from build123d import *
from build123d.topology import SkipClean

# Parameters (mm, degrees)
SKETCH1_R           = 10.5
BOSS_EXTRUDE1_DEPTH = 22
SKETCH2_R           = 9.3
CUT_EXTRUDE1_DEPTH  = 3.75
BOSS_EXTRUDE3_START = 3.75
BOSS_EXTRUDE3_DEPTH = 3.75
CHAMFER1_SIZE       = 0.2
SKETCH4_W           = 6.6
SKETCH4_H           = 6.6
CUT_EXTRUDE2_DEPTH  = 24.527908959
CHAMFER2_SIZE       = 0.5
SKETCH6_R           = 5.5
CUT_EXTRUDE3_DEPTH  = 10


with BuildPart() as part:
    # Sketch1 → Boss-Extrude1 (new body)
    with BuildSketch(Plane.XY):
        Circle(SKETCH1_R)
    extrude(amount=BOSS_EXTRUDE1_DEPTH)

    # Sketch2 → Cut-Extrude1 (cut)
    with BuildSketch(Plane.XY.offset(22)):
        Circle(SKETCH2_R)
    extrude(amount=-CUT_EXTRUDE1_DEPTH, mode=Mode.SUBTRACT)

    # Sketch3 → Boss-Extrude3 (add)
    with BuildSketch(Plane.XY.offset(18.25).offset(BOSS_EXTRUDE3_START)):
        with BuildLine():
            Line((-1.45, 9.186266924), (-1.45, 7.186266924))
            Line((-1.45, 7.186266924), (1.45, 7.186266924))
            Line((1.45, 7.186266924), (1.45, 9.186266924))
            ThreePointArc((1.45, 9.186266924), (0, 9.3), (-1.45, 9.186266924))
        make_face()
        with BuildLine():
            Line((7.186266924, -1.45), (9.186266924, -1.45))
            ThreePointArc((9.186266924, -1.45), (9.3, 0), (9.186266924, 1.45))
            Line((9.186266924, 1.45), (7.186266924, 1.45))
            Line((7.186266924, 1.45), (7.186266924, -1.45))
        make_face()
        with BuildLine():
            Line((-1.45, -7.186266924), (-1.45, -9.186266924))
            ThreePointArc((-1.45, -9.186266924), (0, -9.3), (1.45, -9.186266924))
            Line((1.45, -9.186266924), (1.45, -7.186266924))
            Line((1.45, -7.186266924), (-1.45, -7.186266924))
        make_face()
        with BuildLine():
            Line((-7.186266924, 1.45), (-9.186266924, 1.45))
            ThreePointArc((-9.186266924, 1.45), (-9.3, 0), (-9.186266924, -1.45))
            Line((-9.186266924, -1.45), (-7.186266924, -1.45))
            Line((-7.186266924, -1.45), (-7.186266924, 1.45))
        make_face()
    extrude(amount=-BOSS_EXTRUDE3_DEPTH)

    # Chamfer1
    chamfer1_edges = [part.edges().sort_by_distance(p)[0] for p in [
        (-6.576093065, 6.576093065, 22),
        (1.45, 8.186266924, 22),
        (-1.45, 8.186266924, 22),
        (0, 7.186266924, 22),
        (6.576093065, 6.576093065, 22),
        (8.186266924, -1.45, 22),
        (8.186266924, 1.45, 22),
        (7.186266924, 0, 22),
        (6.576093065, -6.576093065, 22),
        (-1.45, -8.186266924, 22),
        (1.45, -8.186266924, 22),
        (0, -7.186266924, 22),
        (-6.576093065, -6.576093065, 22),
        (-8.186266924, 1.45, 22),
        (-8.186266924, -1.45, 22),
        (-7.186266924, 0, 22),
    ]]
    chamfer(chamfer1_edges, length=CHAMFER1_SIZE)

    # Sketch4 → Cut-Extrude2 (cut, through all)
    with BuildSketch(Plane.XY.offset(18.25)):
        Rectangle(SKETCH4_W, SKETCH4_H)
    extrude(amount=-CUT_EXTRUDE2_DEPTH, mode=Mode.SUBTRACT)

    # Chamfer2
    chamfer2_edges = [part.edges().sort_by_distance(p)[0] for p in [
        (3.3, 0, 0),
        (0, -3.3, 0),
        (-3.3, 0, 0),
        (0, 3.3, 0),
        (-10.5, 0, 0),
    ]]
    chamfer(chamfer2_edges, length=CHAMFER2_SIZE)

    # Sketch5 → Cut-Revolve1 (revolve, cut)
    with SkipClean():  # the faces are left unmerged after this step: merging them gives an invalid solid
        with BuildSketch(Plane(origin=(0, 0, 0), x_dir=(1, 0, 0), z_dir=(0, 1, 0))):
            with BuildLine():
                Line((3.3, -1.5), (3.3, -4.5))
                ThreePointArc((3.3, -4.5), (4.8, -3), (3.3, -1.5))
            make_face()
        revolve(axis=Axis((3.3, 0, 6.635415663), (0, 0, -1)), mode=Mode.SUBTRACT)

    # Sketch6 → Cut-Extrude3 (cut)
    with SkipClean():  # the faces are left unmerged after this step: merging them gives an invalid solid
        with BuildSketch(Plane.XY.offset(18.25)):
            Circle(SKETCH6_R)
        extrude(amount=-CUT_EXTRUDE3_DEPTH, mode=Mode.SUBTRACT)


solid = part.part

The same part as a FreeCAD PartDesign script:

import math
import FreeCAD as App
import Part
import Sketcher
Q = App.Units.Quantity


def edges_at(feature, points):
    """Names of the edges that pass closest to the given points."""
    edges = feature.Shape.Edges
    near = lambda p: min(range(len(edges)), key=lambda i: edges[i].distToShape(Part.Vertex(*p))[0])
    return sorted({f"Edge{near(p) + 1}" for p in points})

doc = App.newDocument("Part")
body = doc.addObject("PartDesign::Body", "Body")

# Sketch on XY plane
sketch1 = body.newObject("Sketcher::SketchObject", "Sketch")
sketch1.AttachmentSupport = (doc.getObject("XY_Plane"), [""])
sketch1.MapMode = "FlatFace"
sketch1.addGeometry(Part.Circle(App.Vector(0, 0, 0), App.Vector(0, 0, 1), 10.5), False)
sketch1.addConstraint([
    Sketcher.Constraint("Coincident", 0, 3, -1, 1),
    Sketcher.Constraint("Diameter", 0, Q("21 mm")),
])
pad1 = body.newObject("PartDesign::Pad", "Pad")
pad1.Profile = sketch1
pad1.Length = 22

# Sketch on XY plane
sketch2 = body.newObject("Sketcher::SketchObject", "Sketch001")
sketch2.AttachmentSupport = (doc.getObject("XY_Plane"), [""])
sketch2.MapMode = "FlatFace"
sketch2.AttachmentOffset = App.Placement(App.Vector(0, 0, 22), App.Rotation())
sketch2.addGeometry(Part.Circle(App.Vector(0, 0, 0), App.Vector(0, 0, 1), 9.3), False)
sketch2.addConstraint([
    Sketcher.Constraint("Coincident", 0, 3, -1, 1),
    Sketcher.Constraint("Diameter", 0, Q("18.6 mm")),
])
pocket1 = body.newObject("PartDesign::Pocket", "Pocket")
pocket1.Profile = sketch2
pocket1.Length = 3.75

# Sketch on XY plane
sketch3 = body.newObject("Sketcher::SketchObject", "Sketch002")
sketch3.AttachmentSupport = (doc.getObject("XY_Plane"), [""])
sketch3.MapMode = "FlatFace"
sketch3.AttachmentOffset = App.Placement(App.Vector(0, 0, 22), App.Rotation())
sketch3.addGeometry([
    Part.LineSegment(App.Vector(-1.45, 9.186267, 0), App.Vector(-1.45, 7.186267, 0)),  # 0
    Part.LineSegment(App.Vector(-1.45, 7.186267, 0), App.Vector(1.45, 7.186267, 0)),  # 1
    Part.LineSegment(App.Vector(1.45, 7.186267, 0), App.Vector(1.45, 9.186267, 0)),  # 2
    Part.ArcOfCircle(Part.Circle(App.Vector(0, 0, 0), App.Vector(0, 0, 1), 9.3), math.radians(81.030192), math.radians(98.969808)),  # 3
    Part.LineSegment(App.Vector(7.186267, -1.45, 0), App.Vector(9.186267, -1.45, 0)),  # 4
    Part.ArcOfCircle(Part.Circle(App.Vector(0, 0, 0), App.Vector(0, 0, 1), 9.3), math.radians(-8.969808), math.radians(8.969808)),  # 5
    Part.LineSegment(App.Vector(9.186267, 1.45, 0), App.Vector(7.186267, 1.45, 0)),  # 6
    Part.LineSegment(App.Vector(7.186267, 1.45, 0), App.Vector(7.186267, -1.45, 0)),  # 7
    Part.LineSegment(App.Vector(-1.45, -7.186267, 0), App.Vector(-1.45, -9.186267, 0)),  # 8
    Part.ArcOfCircle(Part.Circle(App.Vector(0, 0, 0), App.Vector(0, 0, 1), 9.3), math.radians(-98.969808), math.radians(-81.030192)),  # 9
    Part.LineSegment(App.Vector(1.45, -9.186267, 0), App.Vector(1.45, -7.186267, 0)),  # 10
    Part.LineSegment(App.Vector(1.45, -7.186267, 0), App.Vector(-1.45, -7.186267, 0)),  # 11
    Part.LineSegment(App.Vector(-7.186267, 1.45, 0), App.Vector(-9.186267, 1.45, 0)),  # 12
    Part.ArcOfCircle(Part.Circle(App.Vector(0, 0, 0), App.Vector(0, 0, 1), 9.3), math.radians(171.030192), math.radians(188.969808)),  # 13
    Part.LineSegment(App.Vector(-9.186267, -1.45, 0), App.Vector(-7.186267, -1.45, 0)),  # 14
    Part.LineSegment(App.Vector(-7.186267, -1.45, 0), App.Vector(-7.186267, 1.45, 0)),  # 15
], False)
sketch3.addConstraint([
    Sketcher.Constraint("Coincident", 0, 2, 1, 1),
    Sketcher.Constraint("Coincident", 1, 2, 2, 1),
    Sketcher.Constraint("Coincident", 2, 2, 3, 1),
    Sketcher.Constraint("Coincident", 3, 2, 0, 1),
    Sketcher.Constraint("Coincident", 4, 2, 5, 1),
    Sketcher.Constraint("Coincident", 5, 2, 6, 1),
    Sketcher.Constraint("Coincident", 6, 2, 7, 1),
    Sketcher.Constraint("Coincident", 7, 2, 4, 1),
    Sketcher.Constraint("Coincident", 8, 2, 9, 1),
    Sketcher.Constraint("Coincident", 9, 2, 10, 1),
    Sketcher.Constraint("Coincident", 10, 2, 11, 1),
    Sketcher.Constraint("Coincident", 11, 2, 8, 1),
    Sketcher.Constraint("Coincident", 12, 2, 13, 1),
    Sketcher.Constraint("Coincident", 13, 2, 14, 1),
    Sketcher.Constraint("Coincident", 14, 2, 15, 1),
    Sketcher.Constraint("Coincident", 15, 2, 12, 1),
    Sketcher.Constraint("Vertical", 0),
    Sketcher.Constraint("Horizontal", 1),
    Sketcher.Constraint("Vertical", 2),
    Sketcher.Constraint("Horizontal", 4),
    Sketcher.Constraint("Horizontal", 6),
    Sketcher.Constraint("Vertical", 7),
    Sketcher.Constraint("Vertical", 8),
    Sketcher.Constraint("Vertical", 10),
    Sketcher.Constraint("Horizontal", 11),
    Sketcher.Constraint("Horizontal", 12),
    Sketcher.Constraint("Horizontal", 14),
    Sketcher.Constraint("Vertical", 15),
    Sketcher.Constraint("Coincident", 3, 3, -1, 1),
    Sketcher.Constraint("Coincident", 5, 3, -1, 1),
    Sketcher.Constraint("Coincident", 9, 3, -1, 1),
    Sketcher.Constraint("Coincident", 13, 3, -1, 1),
    Sketcher.Constraint("Equal", 3, 5),
    Sketcher.Constraint("Equal", 5, 9),
    Sketcher.Constraint("Equal", 9, 13),
    Sketcher.Constraint("Symmetric", 0, 2, 10, 2, -1, 1),
    Sketcher.Constraint("Symmetric", 6, 2, 14, 2, -1, 1),
    Sketcher.Constraint("Horizontal", 2, 2, 3, 2),
    Sketcher.Constraint("Horizontal", 8, 2, 9, 2),
    Sketcher.Constraint("Horizontal", 6, 2, 12, 2),
    Sketcher.Constraint("Horizontal", 7, 2, 13, 2),
    Sketcher.Constraint("Equal", 14, 0),
    Sketcher.Constraint("Equal", 11, 7),
    Sketcher.Constraint("Radius", 3, Q("9.3 mm")),
    Sketcher.Constraint("DistanceX", 4, 1, 4, 2, Q("2 mm")),
    Sketcher.Constraint("DistanceX", 1, 1, 1, 2, Q("2.9 mm")),
])
pad2 = body.newObject("PartDesign::Pad", "Pad001")
pad2.Profile = sketch3
pad2.Length = 3.75
pad2.Reversed = True
doc.recompute()

chamfer = body.newObject("PartDesign::Chamfer", "Chamfer")
chamfer.Base = (pad2, edges_at(pad2, [
    (-6.576, 6.576, 22),
    (1.45, 8.186, 22),
    (-1.45, 8.186, 22),
    (0, 7.186, 22),
    (6.576, 6.576, 22),
    (8.186, -1.45, 22),
    (8.186, 1.45, 22),
    (7.186, 0, 22),
    (6.576, -6.576, 22),
    (-1.45, -8.186, 22),
    (1.45, -8.186, 22),
    (0, -7.186, 22),
    (-6.576, -6.576, 22),
    (-8.186, 1.45, 22),
    (-8.186, -1.45, 22),
    (-7.186, 0, 22),
]))
chamfer.Size = 0.2

# Sketch on XY plane
sketch4 = body.newObject("Sketcher::SketchObject", "Sketch003")
sketch4.AttachmentSupport = (doc.getObject("XY_Plane"), [""])
sketch4.MapMode = "FlatFace"
sketch4.AttachmentOffset = App.Placement(App.Vector(0, 0, 18.25), App.Rotation())
sketch4.addGeometry([
    Part.LineSegment(App.Vector(-3.3, 3.3, 0), App.Vector(-3.3, -3.3, 0)),
    Part.LineSegment(App.Vector(-3.3, -3.3, 0), App.Vector(3.3, -3.3, 0)),
    Part.LineSegment(App.Vector(3.3, -3.3, 0), App.Vector(3.3, 3.3, 0)),
    Part.LineSegment(App.Vector(3.3, 3.3, 0), App.Vector(-3.3, 3.3, 0)),
], False)
sketch4.addConstraint([
    Sketcher.Constraint("Coincident", 0, 2, 1, 1),
    Sketcher.Constraint("Coincident", 1, 2, 2, 1),
    Sketcher.Constraint("Coincident", 2, 2, 3, 1),
    Sketcher.Constraint("Coincident", 3, 2, 0, 1),
    Sketcher.Constraint("Vertical", 0),
    Sketcher.Constraint("Horizontal", 1),
    Sketcher.Constraint("Vertical", 2),
    Sketcher.Constraint("Horizontal", 3),
    Sketcher.Constraint("Symmetric", 0, 2, 2, 2, -1, 1),
    Sketcher.Constraint("Equal", 3, 0),
    Sketcher.Constraint("DistanceX", 1, 1, 1, 2, Q("6.6 mm")),
])
pocket2 = body.newObject("PartDesign::Pocket", "Pocket001")
pocket2.Profile = sketch4
pocket2.Type = "ThroughAll"
doc.recompute()

chamfer2 = body.newObject("PartDesign::Chamfer", "Chamfer001")
chamfer2.Base = (pocket2, edges_at(pocket2, [
    (3.3, 0, 0),
    (0, -3.3, 0),
    (-3.3, 0, 0),
    (0, 3.3, 0),
    (-10.5, 0, 0),
]))
chamfer2.Size = 0.5

# Sketch on XZ plane
sketch5 = body.newObject("Sketcher::SketchObject", "Sketch004")
sketch5.AttachmentSupport = (doc.getObject("XZ_Plane"), [""])
sketch5.MapMode = "FlatFace"
sketch5.addGeometry([
    Part.LineSegment(App.Vector(3.3, 1.5, 0), App.Vector(3.3, 4.5, 0)),
    Part.ArcOfCircle(Part.Circle(App.Vector(3.3, 3, 0), App.Vector(0, 0, 1), 1.5), math.radians(-90), math.radians(90)),
], False)
sketch5.addGeometry(Part.LineSegment(App.Vector(3.3, 4.5, 0), App.Vector(3.3, 1.5, 0)), True)  # axis
sketch5.addConstraint([
    Sketcher.Constraint("Coincident", 0, 1, 1, 1),
    Sketcher.Constraint("Coincident", 1, 2, 0, 2),
    Sketcher.Constraint("Vertical", 0),
    Sketcher.Constraint("Vertical", 2),
    Sketcher.Constraint("Coincident", 2, 1, 1, 2),
    Sketcher.Constraint("Vertical", 1, 3, 0, 1),
    Sketcher.Constraint("Equal", 0, 2),
    Sketcher.Constraint("Radius", 1, Q("1.5 mm")),
    Sketcher.Constraint("DistanceY", -1, 1, 1, 3, Q("3 mm")),
    Sketcher.Constraint("DistanceX", -1, 1, 1, 3, Q("3.3 mm")),
])
groove = body.newObject("PartDesign::Groove", "Groove")
groove.Profile = sketch5
groove.ReferenceAxis = (sketch5, ["Axis0"])
groove.Angle = 360

# Sketch on XY plane
sketch6 = body.newObject("Sketcher::SketchObject", "Sketch005")
sketch6.AttachmentSupport = (doc.getObject("XY_Plane"), [""])
sketch6.MapMode = "FlatFace"
sketch6.AttachmentOffset = App.Placement(App.Vector(0, 0, 18.25), App.Rotation())
sketch6.addGeometry(Part.Circle(App.Vector(0, 0, 0), App.Vector(0, 0, 1), 5.5), False)
sketch6.addConstraint([
    Sketcher.Constraint("Coincident", 0, 3, -1, 1),
    Sketcher.Constraint("Diameter", 0, Q("11 mm")),
])
pocket3 = body.newObject("PartDesign::Pocket", "Pocket002")
pocket3.Profile = sketch6
pocket3.Length = 10

doc.recompute()
